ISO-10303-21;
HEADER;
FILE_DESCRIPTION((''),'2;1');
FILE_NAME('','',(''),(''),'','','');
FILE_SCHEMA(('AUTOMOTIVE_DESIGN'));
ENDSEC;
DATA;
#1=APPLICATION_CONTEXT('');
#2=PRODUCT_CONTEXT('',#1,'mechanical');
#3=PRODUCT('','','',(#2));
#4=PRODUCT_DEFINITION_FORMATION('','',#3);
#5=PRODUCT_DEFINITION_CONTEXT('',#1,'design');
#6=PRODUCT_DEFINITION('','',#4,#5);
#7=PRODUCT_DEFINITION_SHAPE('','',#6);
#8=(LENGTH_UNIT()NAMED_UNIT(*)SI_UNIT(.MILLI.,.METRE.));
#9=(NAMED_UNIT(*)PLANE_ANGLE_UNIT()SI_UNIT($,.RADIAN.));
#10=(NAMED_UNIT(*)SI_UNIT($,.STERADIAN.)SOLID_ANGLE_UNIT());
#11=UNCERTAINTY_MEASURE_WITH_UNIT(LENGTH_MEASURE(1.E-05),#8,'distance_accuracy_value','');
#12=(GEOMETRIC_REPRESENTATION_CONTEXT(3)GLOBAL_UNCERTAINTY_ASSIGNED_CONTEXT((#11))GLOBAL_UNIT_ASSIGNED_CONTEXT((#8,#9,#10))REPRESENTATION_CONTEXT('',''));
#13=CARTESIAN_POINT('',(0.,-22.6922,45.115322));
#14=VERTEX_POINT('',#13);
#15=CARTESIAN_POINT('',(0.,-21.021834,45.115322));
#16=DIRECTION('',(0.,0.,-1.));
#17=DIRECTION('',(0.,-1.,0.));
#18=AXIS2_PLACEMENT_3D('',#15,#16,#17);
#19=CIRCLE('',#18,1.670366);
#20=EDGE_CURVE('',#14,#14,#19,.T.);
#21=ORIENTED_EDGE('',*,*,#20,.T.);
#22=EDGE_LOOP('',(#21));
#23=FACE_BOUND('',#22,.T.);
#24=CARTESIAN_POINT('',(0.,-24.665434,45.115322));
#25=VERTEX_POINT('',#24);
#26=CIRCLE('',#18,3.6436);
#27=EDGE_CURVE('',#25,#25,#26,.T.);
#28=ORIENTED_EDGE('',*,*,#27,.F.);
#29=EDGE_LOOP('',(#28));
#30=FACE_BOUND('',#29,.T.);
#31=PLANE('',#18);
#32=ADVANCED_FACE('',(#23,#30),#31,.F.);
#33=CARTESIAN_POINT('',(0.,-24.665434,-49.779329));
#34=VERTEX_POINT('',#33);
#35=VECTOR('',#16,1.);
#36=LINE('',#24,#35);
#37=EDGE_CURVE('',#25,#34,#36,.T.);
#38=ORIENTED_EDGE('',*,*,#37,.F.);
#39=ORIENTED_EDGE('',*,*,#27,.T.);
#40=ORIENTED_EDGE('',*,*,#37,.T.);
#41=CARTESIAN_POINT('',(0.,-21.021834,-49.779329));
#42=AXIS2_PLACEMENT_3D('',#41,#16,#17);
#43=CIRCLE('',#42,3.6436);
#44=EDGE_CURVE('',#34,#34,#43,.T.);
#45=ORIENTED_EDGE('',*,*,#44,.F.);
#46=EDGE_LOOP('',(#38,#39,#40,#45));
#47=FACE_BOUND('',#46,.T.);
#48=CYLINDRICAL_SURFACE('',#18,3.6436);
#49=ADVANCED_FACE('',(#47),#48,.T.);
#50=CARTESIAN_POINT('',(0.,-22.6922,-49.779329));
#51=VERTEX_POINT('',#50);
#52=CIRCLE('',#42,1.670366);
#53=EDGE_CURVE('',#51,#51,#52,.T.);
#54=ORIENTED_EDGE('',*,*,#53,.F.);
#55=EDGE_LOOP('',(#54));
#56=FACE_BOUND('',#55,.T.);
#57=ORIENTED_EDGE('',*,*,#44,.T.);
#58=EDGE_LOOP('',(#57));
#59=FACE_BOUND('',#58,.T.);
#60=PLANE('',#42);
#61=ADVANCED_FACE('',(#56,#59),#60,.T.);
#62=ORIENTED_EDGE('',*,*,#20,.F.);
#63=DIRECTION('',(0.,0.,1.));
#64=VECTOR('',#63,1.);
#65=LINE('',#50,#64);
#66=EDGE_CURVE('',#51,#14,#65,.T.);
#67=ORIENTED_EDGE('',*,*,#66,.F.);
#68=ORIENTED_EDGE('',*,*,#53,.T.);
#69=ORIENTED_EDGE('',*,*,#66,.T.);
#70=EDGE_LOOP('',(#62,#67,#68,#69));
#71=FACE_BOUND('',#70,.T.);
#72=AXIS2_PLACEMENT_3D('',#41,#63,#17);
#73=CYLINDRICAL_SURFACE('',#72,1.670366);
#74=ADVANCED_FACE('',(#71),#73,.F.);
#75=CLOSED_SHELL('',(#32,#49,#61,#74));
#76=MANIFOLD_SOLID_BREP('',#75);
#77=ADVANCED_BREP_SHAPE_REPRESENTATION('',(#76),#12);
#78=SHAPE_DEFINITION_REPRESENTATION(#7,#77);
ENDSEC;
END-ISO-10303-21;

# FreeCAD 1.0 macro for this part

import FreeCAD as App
import Part
import Sketcher
from FreeCAD import Vector

doc = App.newDocument("Part")
body = doc.addObject("PartDesign::Body", "Body")

# Sketch on YZ plane
sketch1 = body.newObject("Sketcher::SketchObject", "Sketch")
sketch1.AttachmentSupport = (doc.getObject("YZ_Plane"), [""])
sketch1.MapMode = "FlatFace"
sketch1.addGeometry([
    Part.LineSegment(Vector(-22.7, 45.1, 0), Vector(-24.7, 45.1, 0)),
    Part.LineSegment(Vector(-24.7, 45.1, 0), Vector(-24.7, -49.8, 0)),
    Part.LineSegment(Vector(-24.7, -49.8, 0), Vector(-22.7, -49.8, 0)),
    Part.LineSegment(Vector(-22.7, -49.8, 0), Vector(-22.7, 45.1, 0)),
], False)
sketch1.addGeometry(Part.LineSegment(Vector(-21, 45.1, 0), Vector(-21, -49.8, 0)), True)  # axis
sketch1.addConstraint([
    Sketcher.Constraint("Coincident", 0, 2, 1, 1),
    Sketcher.Constraint("Coincident", 1, 2, 2, 1),
    Sketcher.Constraint("Coincident", 2, 2, 3, 1),
    Sketcher.Constraint("Coincident", 3, 2, 0, 1),
    Sketcher.Constraint("Horizontal", 0),
    Sketcher.Constraint("Vertical", 1),
    Sketcher.Constraint("Horizontal", 2),
    Sketcher.Constraint("Vertical", 3),
    Sketcher.Constraint("Vertical", 4),
    Sketcher.Constraint("Horizontal", 3, 2, 4, 1),
    Sketcher.Constraint("Horizontal", 2, 2, 4, 2),
    Sketcher.Constraint("DistanceY", 1, 2, 1, 1, 94.894651),
    Sketcher.Constraint("DistanceX", 2, 2, -1, 1, 22.6922),
    Sketcher.Constraint("DistanceX", 0, 2, 4, 1, 3.6436),
    Sketcher.Constraint("DistanceX", 0, 2, 0, 1, 1.973234),
    Sketcher.Constraint("DistanceY", 1, 2, -1, 1, 49.779329),
])
revolution = body.newObject("PartDesign::Revolution", "Revolution")
revolution.Profile = sketch1
revolution.ReferenceAxis = (sketch1, ["Axis0"])
revolution.Angle = 360

doc.recompute()
